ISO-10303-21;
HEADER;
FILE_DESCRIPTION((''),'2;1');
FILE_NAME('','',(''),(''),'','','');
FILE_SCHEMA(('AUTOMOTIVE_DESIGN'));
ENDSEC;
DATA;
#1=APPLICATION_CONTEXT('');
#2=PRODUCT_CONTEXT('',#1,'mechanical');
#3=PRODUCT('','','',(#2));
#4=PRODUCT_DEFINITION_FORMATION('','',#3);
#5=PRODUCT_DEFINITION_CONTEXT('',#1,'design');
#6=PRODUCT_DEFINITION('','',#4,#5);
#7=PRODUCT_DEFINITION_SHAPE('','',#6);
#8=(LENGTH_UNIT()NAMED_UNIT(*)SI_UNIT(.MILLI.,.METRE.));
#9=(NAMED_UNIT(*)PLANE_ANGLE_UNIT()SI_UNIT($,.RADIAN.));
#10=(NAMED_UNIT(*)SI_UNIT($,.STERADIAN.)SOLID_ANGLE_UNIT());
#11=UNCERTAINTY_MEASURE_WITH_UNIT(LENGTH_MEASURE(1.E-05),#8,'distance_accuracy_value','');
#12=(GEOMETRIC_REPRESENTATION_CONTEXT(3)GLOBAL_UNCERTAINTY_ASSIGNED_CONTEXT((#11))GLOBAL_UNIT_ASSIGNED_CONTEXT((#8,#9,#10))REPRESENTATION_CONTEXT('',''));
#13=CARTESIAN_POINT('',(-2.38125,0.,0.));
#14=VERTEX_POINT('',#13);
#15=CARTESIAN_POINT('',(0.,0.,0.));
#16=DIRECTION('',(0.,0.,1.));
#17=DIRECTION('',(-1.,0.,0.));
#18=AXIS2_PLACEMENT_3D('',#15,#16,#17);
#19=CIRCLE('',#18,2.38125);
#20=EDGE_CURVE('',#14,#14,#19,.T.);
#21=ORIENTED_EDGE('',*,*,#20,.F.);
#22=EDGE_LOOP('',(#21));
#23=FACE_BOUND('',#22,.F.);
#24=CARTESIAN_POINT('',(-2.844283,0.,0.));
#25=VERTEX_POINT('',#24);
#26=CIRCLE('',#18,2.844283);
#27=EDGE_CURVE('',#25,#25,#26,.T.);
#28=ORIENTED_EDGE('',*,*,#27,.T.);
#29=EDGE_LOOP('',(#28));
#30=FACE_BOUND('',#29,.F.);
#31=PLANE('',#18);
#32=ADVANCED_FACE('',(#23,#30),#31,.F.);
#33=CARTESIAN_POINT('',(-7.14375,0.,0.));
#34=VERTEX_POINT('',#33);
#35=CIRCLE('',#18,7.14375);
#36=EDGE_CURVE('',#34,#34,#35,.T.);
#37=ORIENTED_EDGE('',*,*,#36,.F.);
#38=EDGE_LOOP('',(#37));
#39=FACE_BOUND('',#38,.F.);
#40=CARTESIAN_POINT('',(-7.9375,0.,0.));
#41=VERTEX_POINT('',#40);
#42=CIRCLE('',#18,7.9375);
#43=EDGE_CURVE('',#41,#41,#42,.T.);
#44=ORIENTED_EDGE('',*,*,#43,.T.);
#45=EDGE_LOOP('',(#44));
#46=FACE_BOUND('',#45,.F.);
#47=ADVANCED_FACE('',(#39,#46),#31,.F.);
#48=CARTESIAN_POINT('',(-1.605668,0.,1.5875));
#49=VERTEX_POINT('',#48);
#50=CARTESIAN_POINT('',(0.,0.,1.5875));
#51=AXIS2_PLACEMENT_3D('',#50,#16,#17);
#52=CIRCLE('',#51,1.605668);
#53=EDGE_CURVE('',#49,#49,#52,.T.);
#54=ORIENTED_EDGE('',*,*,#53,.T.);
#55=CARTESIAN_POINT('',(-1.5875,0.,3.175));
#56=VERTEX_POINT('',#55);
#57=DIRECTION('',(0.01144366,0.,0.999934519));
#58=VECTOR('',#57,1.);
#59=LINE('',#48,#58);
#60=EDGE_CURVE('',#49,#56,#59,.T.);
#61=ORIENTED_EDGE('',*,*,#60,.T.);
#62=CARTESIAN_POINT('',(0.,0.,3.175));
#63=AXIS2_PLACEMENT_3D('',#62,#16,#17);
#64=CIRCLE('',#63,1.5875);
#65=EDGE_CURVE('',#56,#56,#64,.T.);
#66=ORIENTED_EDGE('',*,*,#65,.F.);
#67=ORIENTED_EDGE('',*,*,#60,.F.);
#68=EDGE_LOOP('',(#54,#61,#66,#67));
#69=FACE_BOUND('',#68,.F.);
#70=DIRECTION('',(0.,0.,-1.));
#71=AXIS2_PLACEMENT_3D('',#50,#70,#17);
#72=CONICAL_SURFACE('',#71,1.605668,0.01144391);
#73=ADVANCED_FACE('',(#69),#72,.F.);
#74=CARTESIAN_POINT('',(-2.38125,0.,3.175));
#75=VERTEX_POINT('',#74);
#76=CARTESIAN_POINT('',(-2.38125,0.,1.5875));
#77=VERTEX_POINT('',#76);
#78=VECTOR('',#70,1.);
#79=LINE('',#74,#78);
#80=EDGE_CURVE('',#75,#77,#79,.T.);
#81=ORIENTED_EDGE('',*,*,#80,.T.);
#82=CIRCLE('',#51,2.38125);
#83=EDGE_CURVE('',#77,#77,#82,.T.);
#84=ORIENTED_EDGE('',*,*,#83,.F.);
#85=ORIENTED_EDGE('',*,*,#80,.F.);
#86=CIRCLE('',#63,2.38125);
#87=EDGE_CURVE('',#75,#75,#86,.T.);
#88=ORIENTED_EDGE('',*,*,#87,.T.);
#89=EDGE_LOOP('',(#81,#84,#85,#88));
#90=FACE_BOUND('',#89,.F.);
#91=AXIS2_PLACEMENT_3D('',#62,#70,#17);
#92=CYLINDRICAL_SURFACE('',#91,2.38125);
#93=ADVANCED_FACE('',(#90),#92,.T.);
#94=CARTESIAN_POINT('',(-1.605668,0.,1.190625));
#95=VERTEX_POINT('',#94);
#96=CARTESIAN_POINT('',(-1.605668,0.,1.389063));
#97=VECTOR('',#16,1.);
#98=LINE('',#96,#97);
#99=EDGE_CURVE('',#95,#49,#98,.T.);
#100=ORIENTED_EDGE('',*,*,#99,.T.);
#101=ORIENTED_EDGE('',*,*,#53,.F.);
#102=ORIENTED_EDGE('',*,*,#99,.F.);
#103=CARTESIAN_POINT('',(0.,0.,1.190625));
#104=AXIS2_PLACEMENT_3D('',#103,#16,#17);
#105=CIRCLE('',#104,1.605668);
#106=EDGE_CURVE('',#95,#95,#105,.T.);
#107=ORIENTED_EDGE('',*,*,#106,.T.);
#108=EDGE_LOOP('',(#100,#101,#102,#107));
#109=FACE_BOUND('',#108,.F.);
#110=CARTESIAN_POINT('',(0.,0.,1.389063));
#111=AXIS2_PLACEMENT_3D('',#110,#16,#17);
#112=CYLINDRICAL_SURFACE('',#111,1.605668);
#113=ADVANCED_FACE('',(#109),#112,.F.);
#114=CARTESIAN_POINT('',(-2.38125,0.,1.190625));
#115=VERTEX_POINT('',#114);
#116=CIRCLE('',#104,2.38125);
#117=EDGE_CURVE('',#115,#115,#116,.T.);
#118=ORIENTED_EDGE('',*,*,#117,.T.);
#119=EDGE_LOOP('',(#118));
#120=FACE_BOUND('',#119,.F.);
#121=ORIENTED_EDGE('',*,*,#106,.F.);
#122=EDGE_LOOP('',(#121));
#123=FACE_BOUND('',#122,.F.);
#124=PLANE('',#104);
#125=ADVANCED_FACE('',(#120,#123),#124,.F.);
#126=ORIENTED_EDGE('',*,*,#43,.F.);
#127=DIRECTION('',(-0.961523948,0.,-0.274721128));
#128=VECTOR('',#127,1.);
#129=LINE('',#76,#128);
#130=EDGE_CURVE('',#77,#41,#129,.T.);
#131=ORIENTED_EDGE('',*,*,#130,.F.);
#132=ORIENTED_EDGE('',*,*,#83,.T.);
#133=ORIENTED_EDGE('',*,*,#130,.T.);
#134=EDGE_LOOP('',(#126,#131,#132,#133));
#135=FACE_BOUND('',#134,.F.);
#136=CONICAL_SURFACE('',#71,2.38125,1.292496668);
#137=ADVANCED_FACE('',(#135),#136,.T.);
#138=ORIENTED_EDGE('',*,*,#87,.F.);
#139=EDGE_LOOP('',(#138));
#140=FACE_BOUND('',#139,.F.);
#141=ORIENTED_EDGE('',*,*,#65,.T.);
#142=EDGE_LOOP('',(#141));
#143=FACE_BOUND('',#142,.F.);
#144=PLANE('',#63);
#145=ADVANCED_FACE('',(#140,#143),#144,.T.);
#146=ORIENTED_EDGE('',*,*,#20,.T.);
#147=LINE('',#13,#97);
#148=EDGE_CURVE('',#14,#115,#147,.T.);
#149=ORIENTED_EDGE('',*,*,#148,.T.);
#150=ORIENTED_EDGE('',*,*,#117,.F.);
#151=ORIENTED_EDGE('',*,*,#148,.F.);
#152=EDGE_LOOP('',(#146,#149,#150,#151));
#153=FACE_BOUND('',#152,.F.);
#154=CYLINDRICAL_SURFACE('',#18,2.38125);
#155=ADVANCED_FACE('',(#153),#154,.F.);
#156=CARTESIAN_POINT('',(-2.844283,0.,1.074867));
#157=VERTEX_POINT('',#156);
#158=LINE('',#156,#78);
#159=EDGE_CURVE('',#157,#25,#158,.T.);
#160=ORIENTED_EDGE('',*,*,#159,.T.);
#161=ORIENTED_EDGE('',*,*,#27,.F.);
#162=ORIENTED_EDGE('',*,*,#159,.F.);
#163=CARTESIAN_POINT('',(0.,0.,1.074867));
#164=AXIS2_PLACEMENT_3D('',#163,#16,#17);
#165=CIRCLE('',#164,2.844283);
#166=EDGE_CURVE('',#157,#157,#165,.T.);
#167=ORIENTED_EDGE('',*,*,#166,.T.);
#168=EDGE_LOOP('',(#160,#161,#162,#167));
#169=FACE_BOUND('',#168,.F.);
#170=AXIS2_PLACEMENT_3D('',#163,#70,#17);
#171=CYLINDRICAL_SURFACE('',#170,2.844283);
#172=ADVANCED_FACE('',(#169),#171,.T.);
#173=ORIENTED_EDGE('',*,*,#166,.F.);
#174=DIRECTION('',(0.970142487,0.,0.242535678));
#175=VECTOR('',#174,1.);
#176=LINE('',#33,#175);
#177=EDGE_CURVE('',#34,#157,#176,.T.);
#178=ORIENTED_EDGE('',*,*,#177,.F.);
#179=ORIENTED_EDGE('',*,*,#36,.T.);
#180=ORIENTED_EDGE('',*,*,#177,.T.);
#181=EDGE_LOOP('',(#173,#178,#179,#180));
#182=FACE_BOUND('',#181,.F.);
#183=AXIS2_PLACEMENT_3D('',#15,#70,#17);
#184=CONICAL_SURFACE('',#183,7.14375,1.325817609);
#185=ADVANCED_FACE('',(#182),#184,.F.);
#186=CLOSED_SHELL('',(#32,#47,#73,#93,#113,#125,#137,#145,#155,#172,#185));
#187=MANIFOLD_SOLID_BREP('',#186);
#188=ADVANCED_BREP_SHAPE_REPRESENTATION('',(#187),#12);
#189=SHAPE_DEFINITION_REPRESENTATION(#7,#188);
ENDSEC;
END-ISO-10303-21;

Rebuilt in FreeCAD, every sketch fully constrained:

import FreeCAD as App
import Part
import Sketcher

V = App.Vector
Q = App.Units.Quantity


def add_polygon(sketch, points):
    """Adds a closed chain of lines whose ends are joined by coincident constraints."""
    first, n = sketch.GeometryCount, len(points)
    for a, b in zip(points, points[1:] + points[:1]):
        sketch.addGeometry(Part.LineSegment(App.Vector(*a, 0), App.Vector(*b, 0)), False)
    for i in range(n):
        sketch.addConstraint(Sketcher.Constraint("Coincident", first + i, 2, first + (i + 1) % n, 1))

doc = App.newDocument("Part")
body = doc.addObject("PartDesign::Body", "Body")

# Sketch on XZ plane
sketch1 = body.newObject("Sketcher::SketchObject", "Sketch")
sketch1.AttachmentSupport = (doc.getObject("XZ_Plane"), [""])
sketch1.MapMode = "FlatFace"
add_polygon(sketch1, [(-2.844283, 1.074867), (-2.844283, 0), (-2.38125, 0), (-2.38125, 1.190625), (-1.605668, 1.190625), (-1.605668, 1.5875), (-1.5875, 3.175), (-2.38125, 3.175), (-2.38125, 1.5875), (-7.9375, 0), (-7.14375, 0)])  # lines 0-10
sketch1.addConstraint([
    Sketcher.Constraint("Vertical", 0),
    Sketcher.Constraint("Horizontal", 1),
    Sketcher.Constraint("Vertical", 2),
    Sketcher.Constraint("Horizontal", 3),
    Sketcher.Constraint("Vertical", 4),
    Sketcher.Constraint("Horizontal", 6),
    Sketcher.Constraint("Vertical", 7),
    Sketcher.Constraint("Horizontal", 9),
    Sketcher.Constraint("PointOnObject", 0, 2, -1),
    Sketcher.Constraint("PointOnObject", 8, 2, -1),
    Sketcher.Constraint("Horizontal", 4, 2, 7, 2),
    Sketcher.Constraint("Vertical", 2, 2, 6, 2),
    Sketcher.Constraint("Equal", 6, 9),
    Sketcher.Constraint("DistanceX", 6, 2, 6, 1, Q("0.03125 in")),
    Sketcher.Constraint("DistanceY", 2, 1, 2, 2, Q("0.046875 in")),
    Sketcher.Constraint("DistanceY", 4, 1, 4, 2, Q("0.015625 in")),
    Sketcher.Constraint("DistanceY", 7, 2, 7, 1, Q("0.0625 in")),
    Sketcher.Constraint("DistanceX", 1, 2, -1, 1, Q("0.09375 in")),
    Sketcher.Constraint("DistanceX", 8, 2, -1, 1, Q("0.3125 in")),
    Sketcher.Constraint("DistanceX", 3, 1, 3, 2, Q("0.775582 mm")),
    Sketcher.Constraint("Distance", 10, Q("4.431789 mm")),
    Sketcher.Constraint("DistanceX", 1, 1, 1, 2, Q("0.463033 mm")),
])
revolution = body.newObject("PartDesign::Revolution", "Revolution")
revolution.Profile = sketch1
revolution.ReferenceAxis = (sketch1, ["V_Axis"])
revolution.Angle = 360

doc.recompute()
